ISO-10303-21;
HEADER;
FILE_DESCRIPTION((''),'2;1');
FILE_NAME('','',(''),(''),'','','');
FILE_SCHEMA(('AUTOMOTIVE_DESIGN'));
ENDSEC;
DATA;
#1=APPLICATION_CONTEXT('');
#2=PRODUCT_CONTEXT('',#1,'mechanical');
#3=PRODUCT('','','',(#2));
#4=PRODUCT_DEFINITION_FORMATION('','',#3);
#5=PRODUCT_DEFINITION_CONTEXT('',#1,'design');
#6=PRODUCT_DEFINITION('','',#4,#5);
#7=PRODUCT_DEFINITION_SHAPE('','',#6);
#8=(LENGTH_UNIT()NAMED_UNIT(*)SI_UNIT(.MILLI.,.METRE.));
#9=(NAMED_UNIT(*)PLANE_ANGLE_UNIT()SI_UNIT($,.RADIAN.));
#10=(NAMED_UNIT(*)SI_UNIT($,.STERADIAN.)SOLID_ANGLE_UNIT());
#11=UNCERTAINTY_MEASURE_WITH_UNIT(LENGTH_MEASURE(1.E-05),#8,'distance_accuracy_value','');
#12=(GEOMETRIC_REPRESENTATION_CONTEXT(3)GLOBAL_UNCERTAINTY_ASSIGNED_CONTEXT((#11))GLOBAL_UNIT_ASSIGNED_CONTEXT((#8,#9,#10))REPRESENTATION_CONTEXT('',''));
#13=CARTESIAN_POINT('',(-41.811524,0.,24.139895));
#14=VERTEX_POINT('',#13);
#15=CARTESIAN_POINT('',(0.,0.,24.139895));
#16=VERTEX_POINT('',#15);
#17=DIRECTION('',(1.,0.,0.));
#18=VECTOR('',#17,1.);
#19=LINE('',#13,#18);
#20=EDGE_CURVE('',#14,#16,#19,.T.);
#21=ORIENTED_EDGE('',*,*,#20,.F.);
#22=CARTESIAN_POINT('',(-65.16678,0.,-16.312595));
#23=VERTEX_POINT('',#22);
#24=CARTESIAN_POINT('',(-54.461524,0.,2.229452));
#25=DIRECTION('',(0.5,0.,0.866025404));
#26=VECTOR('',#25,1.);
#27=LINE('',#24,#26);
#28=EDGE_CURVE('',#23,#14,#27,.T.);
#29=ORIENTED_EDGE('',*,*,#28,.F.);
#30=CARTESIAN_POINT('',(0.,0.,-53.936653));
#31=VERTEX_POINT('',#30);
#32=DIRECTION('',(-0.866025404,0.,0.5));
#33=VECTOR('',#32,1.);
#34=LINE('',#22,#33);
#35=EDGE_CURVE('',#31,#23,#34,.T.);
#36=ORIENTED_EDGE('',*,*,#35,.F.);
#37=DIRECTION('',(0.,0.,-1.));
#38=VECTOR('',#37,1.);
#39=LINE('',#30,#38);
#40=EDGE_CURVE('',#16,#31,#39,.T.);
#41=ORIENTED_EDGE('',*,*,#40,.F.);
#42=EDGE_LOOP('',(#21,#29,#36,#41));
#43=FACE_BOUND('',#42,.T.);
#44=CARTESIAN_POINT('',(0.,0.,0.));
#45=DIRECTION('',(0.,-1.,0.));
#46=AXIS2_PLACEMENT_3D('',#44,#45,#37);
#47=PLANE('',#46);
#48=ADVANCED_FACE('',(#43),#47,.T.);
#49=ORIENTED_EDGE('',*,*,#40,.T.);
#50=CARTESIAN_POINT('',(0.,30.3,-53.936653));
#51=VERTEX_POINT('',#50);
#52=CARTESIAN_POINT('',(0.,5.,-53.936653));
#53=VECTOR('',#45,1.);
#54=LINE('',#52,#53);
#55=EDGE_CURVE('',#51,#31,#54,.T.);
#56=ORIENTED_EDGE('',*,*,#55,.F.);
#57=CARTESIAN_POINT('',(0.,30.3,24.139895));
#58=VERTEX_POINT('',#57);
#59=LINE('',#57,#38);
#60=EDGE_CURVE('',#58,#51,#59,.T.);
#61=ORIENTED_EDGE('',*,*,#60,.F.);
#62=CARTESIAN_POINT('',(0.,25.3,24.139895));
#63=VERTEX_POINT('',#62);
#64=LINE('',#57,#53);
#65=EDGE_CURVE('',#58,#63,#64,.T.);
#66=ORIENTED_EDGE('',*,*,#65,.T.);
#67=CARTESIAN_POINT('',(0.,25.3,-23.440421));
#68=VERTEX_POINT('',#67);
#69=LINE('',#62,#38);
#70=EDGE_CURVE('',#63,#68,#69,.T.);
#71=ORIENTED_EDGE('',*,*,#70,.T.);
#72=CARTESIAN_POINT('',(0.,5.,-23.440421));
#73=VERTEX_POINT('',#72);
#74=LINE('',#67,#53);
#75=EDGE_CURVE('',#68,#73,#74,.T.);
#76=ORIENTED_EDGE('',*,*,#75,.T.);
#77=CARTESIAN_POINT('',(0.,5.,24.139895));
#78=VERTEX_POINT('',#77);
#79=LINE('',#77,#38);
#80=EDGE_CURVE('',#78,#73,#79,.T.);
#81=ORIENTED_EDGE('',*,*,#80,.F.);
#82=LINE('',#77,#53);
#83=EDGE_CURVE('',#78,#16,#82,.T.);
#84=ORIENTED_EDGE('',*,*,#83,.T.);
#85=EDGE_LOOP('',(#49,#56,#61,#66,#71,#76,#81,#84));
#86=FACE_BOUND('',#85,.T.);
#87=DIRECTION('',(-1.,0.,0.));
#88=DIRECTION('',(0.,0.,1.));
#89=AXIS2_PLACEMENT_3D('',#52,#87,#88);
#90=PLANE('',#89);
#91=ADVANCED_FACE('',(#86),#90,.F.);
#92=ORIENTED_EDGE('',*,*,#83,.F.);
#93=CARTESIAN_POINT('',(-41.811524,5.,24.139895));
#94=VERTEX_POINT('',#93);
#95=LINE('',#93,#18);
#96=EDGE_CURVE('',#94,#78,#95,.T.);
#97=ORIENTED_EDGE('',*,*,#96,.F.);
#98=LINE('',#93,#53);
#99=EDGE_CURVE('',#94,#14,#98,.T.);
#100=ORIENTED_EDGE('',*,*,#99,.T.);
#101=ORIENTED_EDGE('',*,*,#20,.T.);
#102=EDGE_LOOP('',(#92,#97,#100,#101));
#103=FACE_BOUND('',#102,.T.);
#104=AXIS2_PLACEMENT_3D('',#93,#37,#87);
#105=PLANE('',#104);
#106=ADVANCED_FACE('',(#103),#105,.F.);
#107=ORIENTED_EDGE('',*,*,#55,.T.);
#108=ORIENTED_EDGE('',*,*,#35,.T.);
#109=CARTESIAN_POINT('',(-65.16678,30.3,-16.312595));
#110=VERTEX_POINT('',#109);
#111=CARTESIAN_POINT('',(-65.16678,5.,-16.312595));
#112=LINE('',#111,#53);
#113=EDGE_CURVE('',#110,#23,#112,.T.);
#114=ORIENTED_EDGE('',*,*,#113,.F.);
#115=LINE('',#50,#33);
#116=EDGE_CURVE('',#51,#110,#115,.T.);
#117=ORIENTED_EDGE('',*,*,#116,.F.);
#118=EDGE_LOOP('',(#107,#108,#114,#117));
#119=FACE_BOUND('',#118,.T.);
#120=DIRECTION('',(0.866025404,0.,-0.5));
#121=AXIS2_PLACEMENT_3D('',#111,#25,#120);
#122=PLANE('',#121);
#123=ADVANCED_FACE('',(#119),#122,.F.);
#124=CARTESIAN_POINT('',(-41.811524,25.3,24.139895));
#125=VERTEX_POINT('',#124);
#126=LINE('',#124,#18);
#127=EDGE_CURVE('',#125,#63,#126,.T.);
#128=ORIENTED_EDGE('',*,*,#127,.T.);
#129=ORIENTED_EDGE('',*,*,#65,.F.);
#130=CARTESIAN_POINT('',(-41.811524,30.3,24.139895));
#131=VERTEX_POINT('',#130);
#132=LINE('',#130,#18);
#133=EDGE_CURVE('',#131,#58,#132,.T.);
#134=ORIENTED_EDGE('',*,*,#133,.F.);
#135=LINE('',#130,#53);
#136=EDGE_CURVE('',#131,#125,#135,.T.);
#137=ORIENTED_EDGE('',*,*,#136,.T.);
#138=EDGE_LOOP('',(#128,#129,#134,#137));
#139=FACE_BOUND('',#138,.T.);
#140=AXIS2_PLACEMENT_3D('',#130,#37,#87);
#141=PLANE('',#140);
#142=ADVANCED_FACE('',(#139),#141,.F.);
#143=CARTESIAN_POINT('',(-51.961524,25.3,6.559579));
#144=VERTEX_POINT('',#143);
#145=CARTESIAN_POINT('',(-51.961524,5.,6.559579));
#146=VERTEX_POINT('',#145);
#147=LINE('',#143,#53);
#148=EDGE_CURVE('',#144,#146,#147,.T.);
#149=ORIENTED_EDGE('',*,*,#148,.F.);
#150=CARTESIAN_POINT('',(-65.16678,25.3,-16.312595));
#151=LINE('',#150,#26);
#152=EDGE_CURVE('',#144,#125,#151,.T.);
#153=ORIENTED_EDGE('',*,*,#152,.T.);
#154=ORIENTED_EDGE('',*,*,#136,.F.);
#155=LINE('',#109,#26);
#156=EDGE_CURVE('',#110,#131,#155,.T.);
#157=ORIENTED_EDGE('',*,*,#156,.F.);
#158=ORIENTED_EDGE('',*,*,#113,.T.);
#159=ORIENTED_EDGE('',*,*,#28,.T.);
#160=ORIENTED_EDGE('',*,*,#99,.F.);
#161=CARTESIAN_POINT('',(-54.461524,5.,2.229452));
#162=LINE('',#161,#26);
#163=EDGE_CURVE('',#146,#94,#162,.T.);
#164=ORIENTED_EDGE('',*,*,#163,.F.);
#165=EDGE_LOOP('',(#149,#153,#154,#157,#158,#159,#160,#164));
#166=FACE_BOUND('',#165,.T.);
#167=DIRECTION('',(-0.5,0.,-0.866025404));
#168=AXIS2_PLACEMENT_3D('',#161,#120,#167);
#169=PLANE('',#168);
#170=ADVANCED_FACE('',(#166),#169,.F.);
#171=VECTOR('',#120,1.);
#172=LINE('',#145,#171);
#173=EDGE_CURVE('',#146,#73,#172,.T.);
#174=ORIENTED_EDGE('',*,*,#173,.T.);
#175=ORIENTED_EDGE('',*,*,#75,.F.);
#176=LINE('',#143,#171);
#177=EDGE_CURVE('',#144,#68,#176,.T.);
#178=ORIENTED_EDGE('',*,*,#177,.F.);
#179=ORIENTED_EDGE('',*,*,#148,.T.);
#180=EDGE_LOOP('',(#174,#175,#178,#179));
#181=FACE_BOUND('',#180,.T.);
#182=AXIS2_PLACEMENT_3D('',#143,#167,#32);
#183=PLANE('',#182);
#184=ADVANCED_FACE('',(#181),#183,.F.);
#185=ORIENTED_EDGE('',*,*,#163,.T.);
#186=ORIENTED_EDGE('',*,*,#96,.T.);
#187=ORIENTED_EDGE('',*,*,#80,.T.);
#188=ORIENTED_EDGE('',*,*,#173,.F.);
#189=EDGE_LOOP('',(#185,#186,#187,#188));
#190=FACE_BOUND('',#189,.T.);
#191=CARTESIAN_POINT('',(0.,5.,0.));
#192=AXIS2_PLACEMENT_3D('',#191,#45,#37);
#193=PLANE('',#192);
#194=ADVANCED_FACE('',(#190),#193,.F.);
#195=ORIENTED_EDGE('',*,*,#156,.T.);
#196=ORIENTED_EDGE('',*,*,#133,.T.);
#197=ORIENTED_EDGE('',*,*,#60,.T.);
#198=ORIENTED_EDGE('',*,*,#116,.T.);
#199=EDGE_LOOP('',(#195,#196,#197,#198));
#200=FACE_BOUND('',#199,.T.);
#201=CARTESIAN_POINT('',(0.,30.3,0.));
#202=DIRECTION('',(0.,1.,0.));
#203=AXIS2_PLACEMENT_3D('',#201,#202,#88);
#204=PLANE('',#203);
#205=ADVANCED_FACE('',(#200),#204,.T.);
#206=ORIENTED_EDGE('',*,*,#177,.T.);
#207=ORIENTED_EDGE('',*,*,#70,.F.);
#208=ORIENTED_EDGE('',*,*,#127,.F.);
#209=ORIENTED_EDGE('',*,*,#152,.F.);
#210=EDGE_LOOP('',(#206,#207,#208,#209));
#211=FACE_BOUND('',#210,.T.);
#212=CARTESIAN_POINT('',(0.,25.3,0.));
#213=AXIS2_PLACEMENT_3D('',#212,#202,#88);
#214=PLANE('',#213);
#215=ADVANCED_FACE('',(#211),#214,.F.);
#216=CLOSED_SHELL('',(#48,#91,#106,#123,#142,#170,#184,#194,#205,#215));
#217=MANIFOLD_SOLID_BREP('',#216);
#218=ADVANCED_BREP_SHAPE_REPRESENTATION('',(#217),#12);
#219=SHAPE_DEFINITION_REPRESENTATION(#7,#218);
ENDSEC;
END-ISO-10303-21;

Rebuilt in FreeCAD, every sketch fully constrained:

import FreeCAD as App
import Part
import Sketcher
from FreeCAD import Vector
Q = App.Units.Quantity


def add_polygon(sketch, points):
    """Adds a closed chain of lines whose ends are joined by coincident constraints."""
    first, n = sketch.GeometryCount, len(points)
    for a, b in zip(points, points[1:] + points[:1]):
        sketch.addGeometry(Part.LineSegment(App.Vector(*a, 0), App.Vector(*b, 0)), False)
    for i in range(n):
        sketch.addConstraint(Sketcher.Constraint("Coincident", first + i, 2, first + (i + 1) % n, 1))

doc = App.newDocument("Part")
params = doc.addObject("Spreadsheet::Sheet", "Params")
for row, (alias, value) in enumerate([
    ("sketch1_length", "25.3 mm"),
    ("pad1_length", "5 mm"),
    ("sketch2_length", "60 mm"),
    ("sketch2_length2", "5 mm"),
    ("pad2_length", "20.3 mm"),
    ("pad3_length", "5 mm"),
], start=1):
    params.set(f"A{row}", alias)
    params.set(f"B{row}", "=" + value)
    params.setAlias(f"B{row}", alias)

body = doc.addObject("PartDesign::Body", "Body")

# Sketch on XZ plane
sketch1 = body.newObject("Sketcher::SketchObject", "Sketch")
sketch1.AttachmentSupport = (doc.getObject("XZ_Plane"), [""])
sketch1.MapMode = "FlatFace"
add_polygon(sketch1, [(-54, 2), (-42, 24), (0, 24), (0, -54), (-65, -16)])  # lines 0-4
sketch1.addConstraint([
    Sketcher.Constraint("Horizontal", 1),
    Sketcher.Constraint("Vertical", 2),
    Sketcher.Constraint("PointOnObject", 1, 2, -2),
    Sketcher.Constraint("Perpendicular", 0, 3),
    Sketcher.Constraint("Perpendicular", 3, 4),
    Sketcher.Constraint("Angle", 0, Q("60 deg")),
    Sketcher.Constraint("Distance", 0, 25.3),
    Sketcher.Constraint("Distance", 4, 21.410512),
    Sketcher.Constraint("DistanceX", 1, 1, 1, 2, 41.811524),
    Sketcher.Constraint("DistanceY", -1, 1, 0, 2, 24.139895),
])
sketch1.setExpression("Constraints[11]", "Params.sketch1_length")
pad1 = body.newObject("PartDesign::Pad", "Pad")
pad1.Profile = sketch1
pad1.setExpression("Length", "Params.pad1_length")
pad1.Reversed = True

# Sketch on XZ plane
sketch2 = body.newObject("Sketcher::SketchObject", "Sketch001")
sketch2.AttachmentSupport = (doc.getObject("XZ_Plane"), [""])
sketch2.MapMode = "FlatFace"
sketch2.AttachmentOffset = App.Placement(Vector(0, 0, -5), App.Rotation())
add_polygon(sketch2, [(-52, 7), (0, -23), (0, -54), (-65, -16), (-54, 2)])  # lines 0-4
sketch2.addConstraint([
    Sketcher.Constraint("Vertical", 1),
    Sketcher.Constraint("PointOnObject", 0, 2, -2),
    Sketcher.Constraint("Parallel", 0, 2),
    Sketcher.Constraint("Perpendicular", 2, 3),
    Sketcher.Constraint("Parallel", 3, 4),
    Sketcher.Constraint("Angle", 0, Q("-30 deg")),
    Sketcher.Constraint("Distance", 0, 60.0),
    Sketcher.Constraint("Distance", 4, 5.0),
    Sketcher.Constraint("DistanceY", 1, 2, 1, 1, 30.496232),
    Sketcher.Constraint("DistanceY", 0, 2, -1, 1, 23.440421),
])
sketch2.setExpression("Constraints[11]", "Params.sketch2_length")
sketch2.setExpression("Constraints[12]", "Params.sketch2_length2")
pad2 = body.newObject("PartDesign::Pad", "Pad001")
pad2.Profile = sketch2
pad2.setExpression("Length", "Params.pad2_length")
pad2.Reversed = True

# Sketch on XZ plane
sketch3 = body.newObject("Sketcher::SketchObject", "Sketch002")
sketch3.AttachmentSupport = (doc.getObject("XZ_Plane"), [""])
sketch3.MapMode = "FlatFace"
sketch3.AttachmentOffset = App.Placement(Vector(0, 0, -25.3), App.Rotation())
add_polygon(sketch3, [(-65, -16), (-42, 24), (0, 24), (0, -54)])  # lines 0-3
sketch3.addConstraint([
    Sketcher.Constraint("Horizontal", 1),
    Sketcher.Constraint("Vertical", 2),
    Sketcher.Constraint("PointOnObject", 1, 2, -2),
    Sketcher.Constraint("Perpendicular", 0, 3),
    Sketcher.Constraint("Angle", 0, Q("60 deg")),
    Sketcher.Constraint("Distance", 0, 46.710512),
    Sketcher.Constraint("DistanceX", 1, 1, 1, 2, 41.811524),
    Sketcher.Constraint("DistanceY", -1, 1, 0, 2, 24.139895),
])
pad3 = body.newObject("PartDesign::Pad", "Pad002")
pad3.Profile = sketch3
pad3.setExpression("Length", "Params.pad3_length")
pad3.Reversed = True

doc.recompute()
